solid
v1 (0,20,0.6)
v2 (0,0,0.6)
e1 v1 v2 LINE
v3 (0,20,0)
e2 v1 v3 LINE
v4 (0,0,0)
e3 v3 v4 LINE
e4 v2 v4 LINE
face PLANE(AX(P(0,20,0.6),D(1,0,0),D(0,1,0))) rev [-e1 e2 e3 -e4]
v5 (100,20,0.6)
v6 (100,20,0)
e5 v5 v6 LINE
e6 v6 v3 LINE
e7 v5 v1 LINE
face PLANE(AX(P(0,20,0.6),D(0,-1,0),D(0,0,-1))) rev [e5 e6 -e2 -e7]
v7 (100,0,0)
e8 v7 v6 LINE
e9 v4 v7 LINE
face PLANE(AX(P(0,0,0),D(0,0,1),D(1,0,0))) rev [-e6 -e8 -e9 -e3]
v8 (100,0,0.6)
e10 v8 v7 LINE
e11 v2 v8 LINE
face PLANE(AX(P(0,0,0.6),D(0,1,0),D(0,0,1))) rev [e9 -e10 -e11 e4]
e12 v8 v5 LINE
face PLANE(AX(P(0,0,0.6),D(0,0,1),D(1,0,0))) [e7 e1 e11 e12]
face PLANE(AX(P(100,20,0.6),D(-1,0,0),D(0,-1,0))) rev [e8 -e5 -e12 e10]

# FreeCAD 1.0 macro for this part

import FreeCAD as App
import Part
import Sketcher

V = App.Vector


def add_polygon(sketch, points):
    """Adds a closed chain of lines whose ends are joined by coincident constraints."""
    first, n = sketch.GeometryCount, len(points)
    for a, b in zip(points, points[1:] + points[:1]):
        sketch.addGeometry(Part.LineSegment(App.Vector(*a, 0), App.Vector(*b, 0)), False)
    for i in range(n):
        sketch.addConstraint(Sketcher.Constraint("Coincident", first + i, 2, first + (i + 1) % n, 1))

doc = App.newDocument("Part")
body = doc.addObject("PartDesign::Body", "Body")

sketch1 = body.newObject("Sketcher::SketchObject", "Sketch")
sketch1.AttachmentSupport = (doc.getObject("XY_Plane"), [""])
sketch1.MapMode = "FlatFace"
add_polygon(sketch1, [(0, 20), (0, 0), (100, 0), (100, 20)])
sketch1.addConstraint(Sketcher.Constraint("Vertical", 0))
sketch1.addConstraint(Sketcher.Constraint("Horizontal", 1))
sketch1.addConstraint(Sketcher.Constraint("Vertical", 2))
sketch1.addConstraint(Sketcher.Constraint("Horizontal", 3))
sketch1.addConstraint(Sketcher.Constraint("Coincident", 0, 2, -1, 1))
sketch1.addConstraint(Sketcher.Constraint("DistanceX", 1, 1, 1, 2, 100.0))
sketch1.addConstraint(Sketcher.Constraint("DistanceY", 0, 2, 0, 1, 20.0))
pad1 = body.newObject("PartDesign::Pad", "Pad")
pad1.Profile = sketch1
pad1.Length = 0.6

doc.recompute()
